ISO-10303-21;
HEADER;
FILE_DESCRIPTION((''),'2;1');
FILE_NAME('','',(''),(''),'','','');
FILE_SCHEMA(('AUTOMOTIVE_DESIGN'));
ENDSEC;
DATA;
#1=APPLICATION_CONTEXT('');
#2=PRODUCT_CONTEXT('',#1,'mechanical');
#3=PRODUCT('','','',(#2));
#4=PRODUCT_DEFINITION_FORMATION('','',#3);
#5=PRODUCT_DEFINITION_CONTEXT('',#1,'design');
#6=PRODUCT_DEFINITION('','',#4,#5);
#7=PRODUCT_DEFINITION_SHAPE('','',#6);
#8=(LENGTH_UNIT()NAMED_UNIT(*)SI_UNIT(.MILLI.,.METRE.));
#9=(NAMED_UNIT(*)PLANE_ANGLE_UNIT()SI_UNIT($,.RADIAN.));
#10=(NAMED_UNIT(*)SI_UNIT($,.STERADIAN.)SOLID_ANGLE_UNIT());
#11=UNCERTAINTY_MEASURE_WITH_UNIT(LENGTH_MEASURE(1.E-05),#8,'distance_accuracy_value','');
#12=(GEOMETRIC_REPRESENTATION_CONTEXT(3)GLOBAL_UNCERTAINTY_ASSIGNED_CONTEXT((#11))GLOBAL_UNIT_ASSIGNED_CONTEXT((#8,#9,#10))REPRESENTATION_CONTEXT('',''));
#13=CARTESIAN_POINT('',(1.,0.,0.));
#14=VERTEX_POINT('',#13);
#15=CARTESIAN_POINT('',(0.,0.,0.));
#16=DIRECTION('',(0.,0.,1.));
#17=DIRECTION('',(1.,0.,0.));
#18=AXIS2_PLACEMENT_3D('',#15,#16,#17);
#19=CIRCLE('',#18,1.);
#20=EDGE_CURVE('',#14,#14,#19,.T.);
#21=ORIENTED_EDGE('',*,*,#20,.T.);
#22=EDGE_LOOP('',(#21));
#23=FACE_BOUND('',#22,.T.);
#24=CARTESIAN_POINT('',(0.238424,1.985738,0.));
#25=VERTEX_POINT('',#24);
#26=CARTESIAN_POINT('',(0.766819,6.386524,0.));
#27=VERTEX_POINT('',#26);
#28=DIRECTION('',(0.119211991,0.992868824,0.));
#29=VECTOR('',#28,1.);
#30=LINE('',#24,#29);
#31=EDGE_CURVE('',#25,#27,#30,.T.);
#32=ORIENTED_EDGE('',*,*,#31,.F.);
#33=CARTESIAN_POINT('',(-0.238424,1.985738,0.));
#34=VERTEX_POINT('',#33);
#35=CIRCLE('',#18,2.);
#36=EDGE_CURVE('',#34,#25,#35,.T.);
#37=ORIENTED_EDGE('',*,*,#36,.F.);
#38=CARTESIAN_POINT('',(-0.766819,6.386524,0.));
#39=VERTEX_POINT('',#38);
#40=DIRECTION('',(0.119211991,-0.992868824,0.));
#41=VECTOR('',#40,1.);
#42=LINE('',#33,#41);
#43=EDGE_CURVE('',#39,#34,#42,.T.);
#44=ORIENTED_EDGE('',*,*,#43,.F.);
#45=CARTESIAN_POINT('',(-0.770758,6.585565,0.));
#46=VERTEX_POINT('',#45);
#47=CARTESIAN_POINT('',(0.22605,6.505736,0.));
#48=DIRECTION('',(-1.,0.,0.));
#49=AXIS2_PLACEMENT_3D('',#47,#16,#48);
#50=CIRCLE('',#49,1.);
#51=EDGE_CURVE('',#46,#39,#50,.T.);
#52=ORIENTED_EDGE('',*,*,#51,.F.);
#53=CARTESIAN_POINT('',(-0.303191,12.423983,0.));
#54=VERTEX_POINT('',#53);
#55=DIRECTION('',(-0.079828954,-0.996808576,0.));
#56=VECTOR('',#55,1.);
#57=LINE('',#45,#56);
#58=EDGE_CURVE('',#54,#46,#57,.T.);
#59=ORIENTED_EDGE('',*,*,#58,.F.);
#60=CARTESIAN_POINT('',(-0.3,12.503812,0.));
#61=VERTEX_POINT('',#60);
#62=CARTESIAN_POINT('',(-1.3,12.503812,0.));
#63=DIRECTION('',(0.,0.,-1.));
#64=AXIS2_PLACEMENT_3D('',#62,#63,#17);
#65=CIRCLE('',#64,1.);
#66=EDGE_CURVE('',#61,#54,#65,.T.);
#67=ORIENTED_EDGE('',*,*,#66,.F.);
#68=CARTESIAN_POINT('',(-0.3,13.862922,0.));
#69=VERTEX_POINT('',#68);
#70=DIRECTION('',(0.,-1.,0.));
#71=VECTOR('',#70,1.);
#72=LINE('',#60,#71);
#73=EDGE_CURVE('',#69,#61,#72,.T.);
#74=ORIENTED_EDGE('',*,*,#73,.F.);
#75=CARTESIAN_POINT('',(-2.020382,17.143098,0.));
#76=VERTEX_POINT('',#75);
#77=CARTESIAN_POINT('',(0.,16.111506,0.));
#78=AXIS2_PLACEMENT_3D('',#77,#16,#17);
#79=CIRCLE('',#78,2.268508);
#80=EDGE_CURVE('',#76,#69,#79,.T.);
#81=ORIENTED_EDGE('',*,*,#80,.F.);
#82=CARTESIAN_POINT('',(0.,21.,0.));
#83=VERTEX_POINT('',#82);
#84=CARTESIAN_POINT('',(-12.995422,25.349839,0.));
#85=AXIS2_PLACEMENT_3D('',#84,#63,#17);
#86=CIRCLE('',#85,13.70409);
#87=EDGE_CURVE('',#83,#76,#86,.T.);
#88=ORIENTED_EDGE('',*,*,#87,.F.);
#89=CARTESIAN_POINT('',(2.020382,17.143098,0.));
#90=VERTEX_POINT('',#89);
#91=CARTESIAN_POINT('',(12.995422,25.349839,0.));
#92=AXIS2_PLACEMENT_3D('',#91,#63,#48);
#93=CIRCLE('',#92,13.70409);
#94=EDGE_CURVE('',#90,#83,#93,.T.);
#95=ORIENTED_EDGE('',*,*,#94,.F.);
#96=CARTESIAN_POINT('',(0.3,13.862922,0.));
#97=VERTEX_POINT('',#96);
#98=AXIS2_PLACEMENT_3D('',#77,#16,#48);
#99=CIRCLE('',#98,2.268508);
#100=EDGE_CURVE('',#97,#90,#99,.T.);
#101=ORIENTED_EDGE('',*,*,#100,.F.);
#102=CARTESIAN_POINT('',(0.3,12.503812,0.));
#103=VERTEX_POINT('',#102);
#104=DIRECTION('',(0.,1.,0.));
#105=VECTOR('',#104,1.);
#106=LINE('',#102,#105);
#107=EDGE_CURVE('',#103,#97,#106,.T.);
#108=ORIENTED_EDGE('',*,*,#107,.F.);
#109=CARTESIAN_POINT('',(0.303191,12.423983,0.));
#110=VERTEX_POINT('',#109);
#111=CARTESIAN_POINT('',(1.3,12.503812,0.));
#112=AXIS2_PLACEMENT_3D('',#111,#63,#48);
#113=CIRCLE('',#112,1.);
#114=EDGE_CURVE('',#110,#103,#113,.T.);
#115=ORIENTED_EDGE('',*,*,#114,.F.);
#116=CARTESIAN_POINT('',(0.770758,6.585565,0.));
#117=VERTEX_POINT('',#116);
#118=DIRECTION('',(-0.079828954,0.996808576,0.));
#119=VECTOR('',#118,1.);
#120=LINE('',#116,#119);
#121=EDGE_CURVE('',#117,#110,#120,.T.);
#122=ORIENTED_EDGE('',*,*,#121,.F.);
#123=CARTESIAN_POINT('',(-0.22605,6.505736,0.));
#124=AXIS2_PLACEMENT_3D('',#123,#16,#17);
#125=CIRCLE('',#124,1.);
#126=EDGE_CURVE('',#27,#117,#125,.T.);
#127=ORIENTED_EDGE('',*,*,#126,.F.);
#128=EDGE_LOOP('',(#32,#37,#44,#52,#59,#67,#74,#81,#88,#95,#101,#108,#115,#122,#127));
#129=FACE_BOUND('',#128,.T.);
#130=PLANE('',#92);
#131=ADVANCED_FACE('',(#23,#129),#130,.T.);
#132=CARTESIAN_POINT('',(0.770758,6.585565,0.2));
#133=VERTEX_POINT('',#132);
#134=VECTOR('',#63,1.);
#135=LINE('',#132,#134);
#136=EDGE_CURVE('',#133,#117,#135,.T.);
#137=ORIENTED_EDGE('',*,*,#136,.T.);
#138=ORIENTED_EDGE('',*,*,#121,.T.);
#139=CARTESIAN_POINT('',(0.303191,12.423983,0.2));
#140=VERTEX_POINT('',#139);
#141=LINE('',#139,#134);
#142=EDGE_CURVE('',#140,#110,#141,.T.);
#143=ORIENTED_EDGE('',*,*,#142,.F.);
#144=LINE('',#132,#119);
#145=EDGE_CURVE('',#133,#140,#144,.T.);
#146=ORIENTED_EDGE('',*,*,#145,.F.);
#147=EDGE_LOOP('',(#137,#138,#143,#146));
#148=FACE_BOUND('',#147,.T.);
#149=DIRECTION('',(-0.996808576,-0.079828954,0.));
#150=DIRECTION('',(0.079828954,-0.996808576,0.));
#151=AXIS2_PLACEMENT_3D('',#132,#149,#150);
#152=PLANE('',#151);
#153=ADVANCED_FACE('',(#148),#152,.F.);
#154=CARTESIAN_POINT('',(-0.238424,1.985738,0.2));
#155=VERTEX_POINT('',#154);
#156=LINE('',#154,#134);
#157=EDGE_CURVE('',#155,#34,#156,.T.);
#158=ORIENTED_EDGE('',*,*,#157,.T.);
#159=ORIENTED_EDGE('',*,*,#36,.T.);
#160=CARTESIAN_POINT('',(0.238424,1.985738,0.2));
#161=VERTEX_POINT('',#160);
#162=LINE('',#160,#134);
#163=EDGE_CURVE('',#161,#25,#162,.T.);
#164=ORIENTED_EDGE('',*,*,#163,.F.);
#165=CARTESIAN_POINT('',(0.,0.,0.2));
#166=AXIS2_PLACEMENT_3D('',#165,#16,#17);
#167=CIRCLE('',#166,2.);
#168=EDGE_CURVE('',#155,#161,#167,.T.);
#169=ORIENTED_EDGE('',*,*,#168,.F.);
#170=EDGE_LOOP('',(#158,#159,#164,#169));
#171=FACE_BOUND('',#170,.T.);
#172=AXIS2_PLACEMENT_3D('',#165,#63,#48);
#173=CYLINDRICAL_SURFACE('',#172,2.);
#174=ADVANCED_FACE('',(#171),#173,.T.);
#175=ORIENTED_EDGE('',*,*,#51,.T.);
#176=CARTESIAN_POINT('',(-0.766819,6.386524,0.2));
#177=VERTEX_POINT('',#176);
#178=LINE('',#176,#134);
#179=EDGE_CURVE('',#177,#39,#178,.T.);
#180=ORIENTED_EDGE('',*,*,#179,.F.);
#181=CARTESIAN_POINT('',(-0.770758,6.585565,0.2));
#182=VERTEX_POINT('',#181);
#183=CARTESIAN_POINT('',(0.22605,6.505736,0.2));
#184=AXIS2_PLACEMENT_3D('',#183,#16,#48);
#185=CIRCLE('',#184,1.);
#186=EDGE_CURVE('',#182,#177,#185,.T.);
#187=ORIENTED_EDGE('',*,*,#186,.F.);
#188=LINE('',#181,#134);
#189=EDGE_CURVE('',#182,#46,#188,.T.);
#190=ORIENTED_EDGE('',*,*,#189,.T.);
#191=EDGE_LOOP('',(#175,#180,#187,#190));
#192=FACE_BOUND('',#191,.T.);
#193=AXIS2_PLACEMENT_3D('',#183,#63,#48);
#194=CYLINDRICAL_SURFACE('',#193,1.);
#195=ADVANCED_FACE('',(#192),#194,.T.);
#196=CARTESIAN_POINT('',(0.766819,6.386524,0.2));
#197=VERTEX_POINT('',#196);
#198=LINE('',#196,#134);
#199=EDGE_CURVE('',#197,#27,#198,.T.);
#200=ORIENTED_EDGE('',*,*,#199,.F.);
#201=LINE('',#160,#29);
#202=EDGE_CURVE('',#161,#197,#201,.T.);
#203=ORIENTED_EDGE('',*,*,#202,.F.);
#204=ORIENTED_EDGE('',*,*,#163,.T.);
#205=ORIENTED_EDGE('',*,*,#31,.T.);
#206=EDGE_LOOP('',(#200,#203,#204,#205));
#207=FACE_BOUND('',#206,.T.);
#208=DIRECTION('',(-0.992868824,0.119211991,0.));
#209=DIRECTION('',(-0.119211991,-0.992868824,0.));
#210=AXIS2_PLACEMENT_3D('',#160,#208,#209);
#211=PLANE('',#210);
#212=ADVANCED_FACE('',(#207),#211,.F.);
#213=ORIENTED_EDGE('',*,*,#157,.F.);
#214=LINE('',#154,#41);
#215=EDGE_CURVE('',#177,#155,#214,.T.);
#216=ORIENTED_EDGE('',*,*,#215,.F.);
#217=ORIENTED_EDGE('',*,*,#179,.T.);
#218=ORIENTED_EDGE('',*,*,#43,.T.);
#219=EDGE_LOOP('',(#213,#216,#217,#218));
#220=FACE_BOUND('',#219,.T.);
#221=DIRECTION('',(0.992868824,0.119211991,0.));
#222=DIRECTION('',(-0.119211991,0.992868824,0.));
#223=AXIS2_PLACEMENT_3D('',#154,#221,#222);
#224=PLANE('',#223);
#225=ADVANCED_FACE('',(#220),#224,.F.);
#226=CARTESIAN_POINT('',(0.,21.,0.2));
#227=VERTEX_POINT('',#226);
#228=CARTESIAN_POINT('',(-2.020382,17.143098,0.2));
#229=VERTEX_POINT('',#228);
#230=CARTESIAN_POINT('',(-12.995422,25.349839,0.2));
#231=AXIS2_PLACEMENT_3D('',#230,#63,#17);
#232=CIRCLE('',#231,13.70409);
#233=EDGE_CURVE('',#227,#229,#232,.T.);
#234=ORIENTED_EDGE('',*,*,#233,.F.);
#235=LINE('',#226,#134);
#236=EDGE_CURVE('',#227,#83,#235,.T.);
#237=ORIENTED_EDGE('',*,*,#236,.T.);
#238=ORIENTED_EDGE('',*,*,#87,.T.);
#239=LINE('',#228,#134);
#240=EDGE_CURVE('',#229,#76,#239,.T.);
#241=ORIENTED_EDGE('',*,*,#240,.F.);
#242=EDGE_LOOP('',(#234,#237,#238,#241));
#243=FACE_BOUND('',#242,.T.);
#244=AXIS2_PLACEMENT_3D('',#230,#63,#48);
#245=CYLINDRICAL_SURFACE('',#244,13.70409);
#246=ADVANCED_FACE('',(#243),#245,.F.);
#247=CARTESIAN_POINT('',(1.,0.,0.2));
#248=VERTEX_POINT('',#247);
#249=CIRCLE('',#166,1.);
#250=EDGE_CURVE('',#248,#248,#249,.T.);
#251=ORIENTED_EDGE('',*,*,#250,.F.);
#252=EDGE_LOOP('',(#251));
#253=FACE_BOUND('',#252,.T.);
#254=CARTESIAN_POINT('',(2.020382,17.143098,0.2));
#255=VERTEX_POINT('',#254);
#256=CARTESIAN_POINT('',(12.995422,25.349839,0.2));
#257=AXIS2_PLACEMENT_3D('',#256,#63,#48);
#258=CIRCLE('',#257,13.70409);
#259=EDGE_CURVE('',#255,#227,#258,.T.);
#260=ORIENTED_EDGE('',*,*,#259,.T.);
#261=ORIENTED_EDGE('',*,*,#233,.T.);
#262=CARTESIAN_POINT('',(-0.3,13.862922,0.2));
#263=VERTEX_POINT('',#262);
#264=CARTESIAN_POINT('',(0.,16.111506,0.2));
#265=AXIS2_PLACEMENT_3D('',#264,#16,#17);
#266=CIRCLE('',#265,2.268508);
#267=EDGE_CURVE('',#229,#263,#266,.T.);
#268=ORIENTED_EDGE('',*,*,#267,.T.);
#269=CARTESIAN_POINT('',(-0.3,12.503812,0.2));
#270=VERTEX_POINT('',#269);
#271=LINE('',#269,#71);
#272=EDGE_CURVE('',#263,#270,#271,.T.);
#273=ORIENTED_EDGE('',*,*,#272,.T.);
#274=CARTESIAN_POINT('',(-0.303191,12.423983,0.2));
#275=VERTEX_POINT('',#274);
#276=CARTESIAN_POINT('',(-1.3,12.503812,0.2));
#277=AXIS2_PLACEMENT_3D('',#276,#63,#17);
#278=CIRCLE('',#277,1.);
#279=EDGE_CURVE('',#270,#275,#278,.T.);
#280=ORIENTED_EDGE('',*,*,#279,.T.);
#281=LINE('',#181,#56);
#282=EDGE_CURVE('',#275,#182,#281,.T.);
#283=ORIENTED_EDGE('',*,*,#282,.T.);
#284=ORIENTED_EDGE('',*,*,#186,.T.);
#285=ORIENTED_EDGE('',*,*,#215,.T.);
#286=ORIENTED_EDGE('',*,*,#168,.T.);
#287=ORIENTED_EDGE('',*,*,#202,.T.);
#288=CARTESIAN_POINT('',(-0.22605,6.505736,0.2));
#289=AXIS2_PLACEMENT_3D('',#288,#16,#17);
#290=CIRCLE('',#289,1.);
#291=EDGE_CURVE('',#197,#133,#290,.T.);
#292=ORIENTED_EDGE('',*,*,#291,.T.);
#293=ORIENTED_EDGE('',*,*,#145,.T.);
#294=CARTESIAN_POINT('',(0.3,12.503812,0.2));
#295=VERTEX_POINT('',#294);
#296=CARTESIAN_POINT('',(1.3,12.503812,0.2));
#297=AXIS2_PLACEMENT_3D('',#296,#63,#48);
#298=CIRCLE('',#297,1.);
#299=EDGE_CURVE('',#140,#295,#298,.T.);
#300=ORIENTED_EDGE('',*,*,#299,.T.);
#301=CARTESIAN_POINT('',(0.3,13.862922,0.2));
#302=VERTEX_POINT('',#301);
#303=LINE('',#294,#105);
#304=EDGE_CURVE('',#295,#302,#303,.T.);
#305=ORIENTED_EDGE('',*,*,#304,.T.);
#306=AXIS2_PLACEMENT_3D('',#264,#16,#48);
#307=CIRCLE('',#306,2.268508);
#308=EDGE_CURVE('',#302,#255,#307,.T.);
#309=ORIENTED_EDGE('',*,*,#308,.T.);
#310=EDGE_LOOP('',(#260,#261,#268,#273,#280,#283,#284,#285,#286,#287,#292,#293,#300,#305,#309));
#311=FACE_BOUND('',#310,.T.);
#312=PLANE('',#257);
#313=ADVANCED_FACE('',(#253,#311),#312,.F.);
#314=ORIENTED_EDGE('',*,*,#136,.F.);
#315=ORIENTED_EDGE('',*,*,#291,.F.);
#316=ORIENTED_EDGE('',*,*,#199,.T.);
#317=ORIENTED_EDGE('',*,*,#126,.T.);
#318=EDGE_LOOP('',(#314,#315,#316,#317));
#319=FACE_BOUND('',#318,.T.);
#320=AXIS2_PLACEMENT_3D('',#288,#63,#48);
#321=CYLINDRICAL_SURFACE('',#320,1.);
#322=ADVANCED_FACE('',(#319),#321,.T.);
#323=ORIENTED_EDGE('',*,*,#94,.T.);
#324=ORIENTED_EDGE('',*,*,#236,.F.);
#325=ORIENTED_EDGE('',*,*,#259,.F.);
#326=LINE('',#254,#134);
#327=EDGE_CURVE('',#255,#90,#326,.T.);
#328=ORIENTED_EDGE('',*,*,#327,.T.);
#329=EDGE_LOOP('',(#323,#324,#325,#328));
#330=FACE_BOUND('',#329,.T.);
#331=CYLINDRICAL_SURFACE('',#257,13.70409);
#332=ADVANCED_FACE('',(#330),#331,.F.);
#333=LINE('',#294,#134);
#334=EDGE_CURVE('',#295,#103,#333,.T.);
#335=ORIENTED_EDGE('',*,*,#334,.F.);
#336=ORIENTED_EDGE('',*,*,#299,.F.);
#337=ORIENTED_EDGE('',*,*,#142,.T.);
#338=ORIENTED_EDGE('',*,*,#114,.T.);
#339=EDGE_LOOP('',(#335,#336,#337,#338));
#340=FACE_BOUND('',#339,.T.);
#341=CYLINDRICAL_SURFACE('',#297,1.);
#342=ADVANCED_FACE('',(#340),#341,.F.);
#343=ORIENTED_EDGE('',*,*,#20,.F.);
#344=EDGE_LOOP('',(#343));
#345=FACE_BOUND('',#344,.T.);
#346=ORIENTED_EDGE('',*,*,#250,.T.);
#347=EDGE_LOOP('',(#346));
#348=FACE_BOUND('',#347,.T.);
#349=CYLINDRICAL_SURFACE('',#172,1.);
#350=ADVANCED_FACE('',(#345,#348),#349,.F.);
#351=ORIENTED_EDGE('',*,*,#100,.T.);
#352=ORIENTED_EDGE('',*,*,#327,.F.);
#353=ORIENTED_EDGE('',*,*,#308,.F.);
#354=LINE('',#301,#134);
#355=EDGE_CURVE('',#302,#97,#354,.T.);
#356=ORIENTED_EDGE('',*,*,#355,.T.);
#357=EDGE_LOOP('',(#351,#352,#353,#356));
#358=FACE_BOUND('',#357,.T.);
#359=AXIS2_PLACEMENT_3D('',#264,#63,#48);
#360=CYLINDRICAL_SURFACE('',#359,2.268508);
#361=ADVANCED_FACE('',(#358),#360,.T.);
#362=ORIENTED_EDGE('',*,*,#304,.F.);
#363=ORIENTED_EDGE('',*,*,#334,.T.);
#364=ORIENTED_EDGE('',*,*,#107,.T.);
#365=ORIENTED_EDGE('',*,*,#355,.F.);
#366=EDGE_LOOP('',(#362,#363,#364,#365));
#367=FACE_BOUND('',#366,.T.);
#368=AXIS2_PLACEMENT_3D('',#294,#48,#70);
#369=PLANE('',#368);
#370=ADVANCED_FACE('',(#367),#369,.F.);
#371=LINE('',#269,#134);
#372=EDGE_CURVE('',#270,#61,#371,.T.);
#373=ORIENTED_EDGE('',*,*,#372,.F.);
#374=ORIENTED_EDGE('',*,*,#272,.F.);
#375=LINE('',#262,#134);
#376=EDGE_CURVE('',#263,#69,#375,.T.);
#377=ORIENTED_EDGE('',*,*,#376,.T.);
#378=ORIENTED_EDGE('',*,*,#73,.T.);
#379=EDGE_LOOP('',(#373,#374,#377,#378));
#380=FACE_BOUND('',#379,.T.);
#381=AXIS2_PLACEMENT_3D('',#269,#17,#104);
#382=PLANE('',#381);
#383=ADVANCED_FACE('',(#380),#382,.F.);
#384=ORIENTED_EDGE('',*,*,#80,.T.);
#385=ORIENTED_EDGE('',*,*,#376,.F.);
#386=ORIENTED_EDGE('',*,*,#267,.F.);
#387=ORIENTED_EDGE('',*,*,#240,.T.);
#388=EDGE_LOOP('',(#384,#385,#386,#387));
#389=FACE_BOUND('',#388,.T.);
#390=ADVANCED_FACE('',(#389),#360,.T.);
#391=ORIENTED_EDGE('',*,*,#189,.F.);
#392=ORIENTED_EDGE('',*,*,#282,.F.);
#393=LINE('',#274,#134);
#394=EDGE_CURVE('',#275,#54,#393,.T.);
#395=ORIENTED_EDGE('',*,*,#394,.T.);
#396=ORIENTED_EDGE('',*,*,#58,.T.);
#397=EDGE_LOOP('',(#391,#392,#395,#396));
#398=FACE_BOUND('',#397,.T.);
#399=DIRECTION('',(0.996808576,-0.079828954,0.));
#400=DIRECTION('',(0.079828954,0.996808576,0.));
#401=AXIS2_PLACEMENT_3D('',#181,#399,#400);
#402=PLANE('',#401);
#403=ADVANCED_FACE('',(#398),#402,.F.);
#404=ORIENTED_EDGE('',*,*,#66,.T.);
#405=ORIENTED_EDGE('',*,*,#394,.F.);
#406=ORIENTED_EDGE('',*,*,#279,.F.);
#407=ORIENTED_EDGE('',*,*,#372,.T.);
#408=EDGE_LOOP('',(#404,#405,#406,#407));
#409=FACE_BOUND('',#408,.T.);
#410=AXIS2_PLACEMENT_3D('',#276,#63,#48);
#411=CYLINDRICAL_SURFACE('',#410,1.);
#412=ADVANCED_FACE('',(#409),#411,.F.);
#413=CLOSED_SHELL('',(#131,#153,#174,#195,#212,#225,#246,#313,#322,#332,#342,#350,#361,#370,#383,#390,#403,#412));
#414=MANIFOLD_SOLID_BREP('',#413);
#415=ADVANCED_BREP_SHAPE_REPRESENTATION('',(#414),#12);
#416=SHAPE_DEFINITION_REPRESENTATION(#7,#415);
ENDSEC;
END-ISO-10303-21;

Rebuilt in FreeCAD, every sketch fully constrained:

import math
import FreeCAD as App
import Part
import Sketcher

V = App.Vector

doc = App.newDocument("Part")
params = doc.addObject("Spreadsheet::Sheet", "Params")
for row, (alias, value) in enumerate([
    ("sketch1_diameter", "2 mm"),
    ("sketch1_radius", "2 mm"),
    ("pad1_length", "0.2 mm"),
], start=1):
    params.set(f"A{row}", alias)
    params.set(f"B{row}", "=" + value)
    params.setAlias(f"B{row}", alias)

body = doc.addObject("PartDesign::Body", "Body")

sketch1 = body.newObject("Sketcher::SketchObject", "Sketch")
sketch1.AttachmentSupport = (doc.getObject("XY_Plane"), [""])
sketch1.MapMode = "FlatFace"
sketch1.addGeometry([
    Part.LineSegment(V(-0.77, 6.39, 0), V(-0.24, 1.99, 0)),
    Part.ArcOfCircle(Part.Circle(V(0, 0, 0), V(0, 0, 1), 2), math.radians(97), math.radians(443)),
    Part.LineSegment(V(0.24, 1.99, 0), V(0.77, 6.39, 0)),
    Part.ArcOfCircle(Part.Circle(V(-0.23, 6.51, 0), V(0, 0, 1), 1), math.radians(-6.85), math.radians(4.58)),
    Part.LineSegment(V(0.77, 6.59, 0), V(0.3, 12.42, 0)),
    Part.ArcOfCircle(Part.Circle(V(1.3, 12.5, 0), V(0, 0, 1), 1), math.radians(180), math.radians(184.58)),
    Part.LineSegment(V(0.3, 12.5, 0), V(0.3, 13.86, 0)),
    Part.ArcOfCircle(Part.Circle(V(0, 16.11, 0), V(0, 0, 1), 2.27), math.radians(-82), math.radians(27)),
    Part.ArcOfCircle(Part.Circle(V(13, 25.35, 0), V(0, 0, 1), 13.7), math.radians(-161.49), math.radians(-143.21)),
    Part.ArcOfCircle(Part.Circle(V(-13, 25.35, 0), V(0, 0, 1), 13.7), math.radians(-36.79), math.radians(-18.51)),
    Part.ArcOfCircle(Part.Circle(V(0, 16.11, 0), V(0, 0, 1), 2.27), math.radians(153), math.radians(262)),
    Part.LineSegment(V(-0.3, 13.86, 0), V(-0.3, 12.5, 0)),
    Part.ArcOfCircle(Part.Circle(V(-1.3, 12.5, 0), V(0, 0, 1), 1), math.radians(-4.58), math.radians(0)),
    Part.LineSegment(V(-0.3, 12.42, 0), V(-0.77, 6.59, 0)),
    Part.ArcOfCircle(Part.Circle(V(0.23, 6.51, 0), V(0, 0, 1), 1), math.radians(175.42), math.radians(186.85)),
    Part.Circle(V(0, 0, 0), V(0, 0, 1), 1),
], False)
sketch1.addConstraint([
    Sketcher.Constraint("Coincident", 0, 2, 1, 1),
    Sketcher.Constraint("Coincident", 1, 2, 2, 1),
    Sketcher.Constraint("Tangent", 2, 2, 3, 1),
    Sketcher.Constraint("Tangent", 3, 2, 4, 1),
    Sketcher.Constraint("Tangent", 4, 2, 5, 2),
    Sketcher.Constraint("Tangent", 5, 1, 6, 1),
    Sketcher.Constraint("Coincident", 6, 2, 7, 1),
    Sketcher.Constraint("Coincident", 7, 2, 8, 2),
    Sketcher.Constraint("Coincident", 8, 1, 9, 2),
    Sketcher.Constraint("Coincident", 9, 1, 10, 1),
    Sketcher.Constraint("Coincident", 10, 2, 11, 1),
    Sketcher.Constraint("Tangent", 11, 2, 12, 2),
    Sketcher.Constraint("Tangent", 12, 1, 13, 1),
    Sketcher.Constraint("Tangent", 13, 2, 14, 1),
    Sketcher.Constraint("Tangent", 14, 2, 0, 1),
    Sketcher.Constraint("Vertical", 6),
    Sketcher.Constraint("Vertical", 11),
    Sketcher.Constraint("Coincident", 1, 3, -1, 1),
    Sketcher.Constraint("Coincident", 15, 3, -1, 1),
    Sketcher.Constraint("Coincident", 10, 3, 7, 3),
    Sketcher.Constraint("Equal", 3, 5),
    Sketcher.Constraint("Equal", 8, 9),
    Sketcher.Constraint("Equal", 7, 10),
    Sketcher.Constraint("Equal", 5, 12),
    Sketcher.Constraint("Equal", 12, 14),
    Sketcher.Constraint("Equal", 14, 15),
    Sketcher.Constraint("Symmetric", 8, 3, 9, 3, -2),
    Sketcher.Constraint("Symmetric", 5, 3, 12, 3, -2),
    Sketcher.Constraint("Symmetric", 3, 3, 14, 3, -2),
    Sketcher.Constraint("PointOnObject", 7, 3, -2),
    Sketcher.Constraint("Horizontal", 0, 2, 1, 2),
    Sketcher.Constraint("Diameter", 15, 2.0),
    Sketcher.Constraint("Radius", 1, 2.0),
    Sketcher.Constraint("DistanceY", -1, 1, 8, 1, 21.0),
    Sketcher.Constraint("DistanceX", -1, 1, 5, 3, 1.299999),
    Sketcher.Constraint("Radius", 8, 13.70409),
    Sketcher.Constraint("DistanceY", 0, 2, 3, 3, 4.519999),
    Sketcher.Constraint("Radius", 7, 2.268508),
    Sketcher.Constraint("DistanceY", 6, 1, 6, 2, 1.359111),
    Sketcher.Constraint("DistanceY", -1, 1, 7, 2, 17.143098),
    Sketcher.Constraint("DistanceX", 3, 3, 14, 3, 0.4521),
    Sketcher.Constraint("Distance", 4, 5.85711),
    Sketcher.Constraint("DistanceY", -1, 1, 5, 3, 12.503812),
])
sketch1.setExpression("Constraints[31]", "Params.sketch1_diameter")
sketch1.setExpression("Constraints[32]", "Params.sketch1_radius")
pad1 = body.newObject("PartDesign::Pad", "Pad")
pad1.Profile = sketch1
pad1.setExpression("Length", "Params.pad1_length")

doc.recompute()
